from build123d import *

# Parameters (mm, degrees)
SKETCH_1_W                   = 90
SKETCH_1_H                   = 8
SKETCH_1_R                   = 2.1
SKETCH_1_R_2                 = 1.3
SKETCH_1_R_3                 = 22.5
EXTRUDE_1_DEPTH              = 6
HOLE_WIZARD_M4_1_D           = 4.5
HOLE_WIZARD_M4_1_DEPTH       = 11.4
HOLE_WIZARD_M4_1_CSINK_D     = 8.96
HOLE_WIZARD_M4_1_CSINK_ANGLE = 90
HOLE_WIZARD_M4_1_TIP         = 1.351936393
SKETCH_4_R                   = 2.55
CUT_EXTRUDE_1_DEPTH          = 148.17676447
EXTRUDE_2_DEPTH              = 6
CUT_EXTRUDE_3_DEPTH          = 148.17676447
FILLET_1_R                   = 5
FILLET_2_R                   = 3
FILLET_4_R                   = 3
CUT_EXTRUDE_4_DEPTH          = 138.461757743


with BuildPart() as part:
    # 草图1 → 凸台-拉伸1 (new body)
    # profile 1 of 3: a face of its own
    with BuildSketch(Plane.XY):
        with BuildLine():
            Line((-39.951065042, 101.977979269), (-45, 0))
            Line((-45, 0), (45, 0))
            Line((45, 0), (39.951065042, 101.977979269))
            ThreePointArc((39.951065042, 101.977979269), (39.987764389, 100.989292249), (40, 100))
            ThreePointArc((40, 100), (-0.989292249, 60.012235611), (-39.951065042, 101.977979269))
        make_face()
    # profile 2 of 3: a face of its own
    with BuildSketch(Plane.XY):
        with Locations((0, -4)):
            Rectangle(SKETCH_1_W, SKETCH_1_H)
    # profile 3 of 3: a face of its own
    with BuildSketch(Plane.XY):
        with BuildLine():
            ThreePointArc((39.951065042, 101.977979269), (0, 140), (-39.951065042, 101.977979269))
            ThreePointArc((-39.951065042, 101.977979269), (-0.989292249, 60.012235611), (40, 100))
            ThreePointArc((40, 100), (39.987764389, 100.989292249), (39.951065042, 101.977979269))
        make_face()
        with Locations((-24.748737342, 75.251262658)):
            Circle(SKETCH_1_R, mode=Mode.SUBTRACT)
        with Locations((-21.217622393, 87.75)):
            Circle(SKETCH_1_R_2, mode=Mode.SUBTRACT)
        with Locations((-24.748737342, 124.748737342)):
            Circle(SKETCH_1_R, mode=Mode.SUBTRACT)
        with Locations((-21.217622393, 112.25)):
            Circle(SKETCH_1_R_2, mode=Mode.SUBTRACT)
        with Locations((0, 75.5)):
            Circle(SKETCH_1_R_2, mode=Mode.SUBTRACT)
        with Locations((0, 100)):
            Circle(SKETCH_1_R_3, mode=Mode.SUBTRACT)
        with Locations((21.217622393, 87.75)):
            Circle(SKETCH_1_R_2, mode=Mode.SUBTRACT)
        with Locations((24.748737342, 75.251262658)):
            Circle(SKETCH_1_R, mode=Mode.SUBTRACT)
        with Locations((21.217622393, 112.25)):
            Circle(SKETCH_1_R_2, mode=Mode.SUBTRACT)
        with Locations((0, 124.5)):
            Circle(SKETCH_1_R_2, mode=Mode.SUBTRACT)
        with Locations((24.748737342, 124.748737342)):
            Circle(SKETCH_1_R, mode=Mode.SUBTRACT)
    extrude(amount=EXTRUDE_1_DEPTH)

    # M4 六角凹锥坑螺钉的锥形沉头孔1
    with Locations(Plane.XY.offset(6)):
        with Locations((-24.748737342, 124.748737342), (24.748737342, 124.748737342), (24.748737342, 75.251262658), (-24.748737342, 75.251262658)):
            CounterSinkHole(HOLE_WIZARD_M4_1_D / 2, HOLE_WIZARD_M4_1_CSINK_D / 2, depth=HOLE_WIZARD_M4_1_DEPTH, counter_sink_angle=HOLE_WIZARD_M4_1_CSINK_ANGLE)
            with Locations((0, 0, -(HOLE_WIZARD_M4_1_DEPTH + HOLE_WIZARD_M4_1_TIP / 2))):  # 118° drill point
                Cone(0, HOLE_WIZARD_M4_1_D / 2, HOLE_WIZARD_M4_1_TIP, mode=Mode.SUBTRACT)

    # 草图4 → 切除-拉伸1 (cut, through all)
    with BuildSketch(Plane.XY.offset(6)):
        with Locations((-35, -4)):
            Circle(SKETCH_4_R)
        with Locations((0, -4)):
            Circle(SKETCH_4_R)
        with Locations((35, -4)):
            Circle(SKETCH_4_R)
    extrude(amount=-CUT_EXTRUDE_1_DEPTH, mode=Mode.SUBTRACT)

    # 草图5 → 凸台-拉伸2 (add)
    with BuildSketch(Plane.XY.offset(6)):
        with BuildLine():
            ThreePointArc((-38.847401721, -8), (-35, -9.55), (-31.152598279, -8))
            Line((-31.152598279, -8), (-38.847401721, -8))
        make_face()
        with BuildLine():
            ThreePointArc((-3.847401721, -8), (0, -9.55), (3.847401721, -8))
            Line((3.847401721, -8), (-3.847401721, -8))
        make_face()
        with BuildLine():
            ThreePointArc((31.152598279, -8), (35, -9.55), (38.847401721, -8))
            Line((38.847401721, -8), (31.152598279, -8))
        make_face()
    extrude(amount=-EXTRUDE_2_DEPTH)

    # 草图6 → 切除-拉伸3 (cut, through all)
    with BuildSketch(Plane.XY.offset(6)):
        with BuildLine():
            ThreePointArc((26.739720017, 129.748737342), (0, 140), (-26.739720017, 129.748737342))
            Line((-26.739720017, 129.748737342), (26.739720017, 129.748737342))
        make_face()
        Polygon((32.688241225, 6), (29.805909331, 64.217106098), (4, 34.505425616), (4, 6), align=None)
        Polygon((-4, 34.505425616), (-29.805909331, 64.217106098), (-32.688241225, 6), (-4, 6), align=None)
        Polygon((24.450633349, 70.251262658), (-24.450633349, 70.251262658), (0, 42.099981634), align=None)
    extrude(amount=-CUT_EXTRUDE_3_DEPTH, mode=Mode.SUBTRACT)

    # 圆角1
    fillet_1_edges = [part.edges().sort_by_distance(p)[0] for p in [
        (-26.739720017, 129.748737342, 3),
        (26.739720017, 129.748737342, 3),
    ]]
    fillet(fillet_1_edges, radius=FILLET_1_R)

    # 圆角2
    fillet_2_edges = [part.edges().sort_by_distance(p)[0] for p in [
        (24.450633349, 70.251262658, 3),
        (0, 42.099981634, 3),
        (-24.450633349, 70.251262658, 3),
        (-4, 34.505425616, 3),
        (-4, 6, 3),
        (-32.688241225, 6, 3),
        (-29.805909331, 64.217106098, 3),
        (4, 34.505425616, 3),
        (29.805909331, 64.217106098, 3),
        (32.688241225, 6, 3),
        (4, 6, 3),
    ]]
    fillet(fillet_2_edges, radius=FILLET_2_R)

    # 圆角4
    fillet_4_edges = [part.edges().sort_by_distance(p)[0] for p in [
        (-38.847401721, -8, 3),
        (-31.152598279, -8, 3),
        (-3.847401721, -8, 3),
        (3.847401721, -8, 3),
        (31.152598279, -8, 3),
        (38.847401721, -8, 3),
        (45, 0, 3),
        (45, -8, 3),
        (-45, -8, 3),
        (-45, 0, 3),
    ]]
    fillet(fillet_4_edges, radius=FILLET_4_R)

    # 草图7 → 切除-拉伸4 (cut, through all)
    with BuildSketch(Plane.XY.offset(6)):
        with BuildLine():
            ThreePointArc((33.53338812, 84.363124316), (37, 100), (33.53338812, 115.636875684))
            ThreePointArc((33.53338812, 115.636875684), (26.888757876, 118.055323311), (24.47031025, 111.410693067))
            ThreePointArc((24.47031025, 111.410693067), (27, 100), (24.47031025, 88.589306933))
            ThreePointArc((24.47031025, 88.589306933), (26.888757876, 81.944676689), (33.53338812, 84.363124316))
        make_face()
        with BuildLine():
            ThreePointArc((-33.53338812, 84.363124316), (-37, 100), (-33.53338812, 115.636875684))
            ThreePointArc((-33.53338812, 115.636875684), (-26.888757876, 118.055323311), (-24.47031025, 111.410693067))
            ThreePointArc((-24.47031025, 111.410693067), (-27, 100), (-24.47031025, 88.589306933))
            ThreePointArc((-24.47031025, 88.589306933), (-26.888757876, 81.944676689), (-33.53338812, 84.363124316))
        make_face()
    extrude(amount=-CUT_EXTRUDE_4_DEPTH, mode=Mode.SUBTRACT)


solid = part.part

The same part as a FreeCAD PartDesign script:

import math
import FreeCAD as App
import Part
import Sketcher
Q = App.Units.Quantity


def edges_at(feature, points):
    """Names of the edges that pass closest to the given points."""
    edges = feature.Shape.Edges
    near = lambda p: min(range(len(edges)), key=lambda i: edges[i].distToShape(Part.Vertex(*p))[0])
    return sorted({f"Edge{near(p) + 1}" for p in points})

doc = App.newDocument("Part")
params = doc.addObject("Spreadsheet::Sheet", "Params")
for row, (alias, value) in enumerate([
    ("sketch1_diameter", "45 mm"),
    ("sketch1_radius", "40 mm"),
    ("sketch1_diameter2", "4.2 mm"),
    ("sketch1_diameter3", "2.6 mm"),
    ("sketch1_width", "90 mm"),
    ("pad1_length", "6 mm"),
    ("sketch2_diameter", "4.5 mm"),
    ("hole_diameter", "4.5 mm"),
    ("hole_depth", "11.4 mm"),
    ("hole_csink_diameter", "8.96 mm"),
    ("sketch3_diameter", "5.1 mm"),
    ("sketch4_radius", "5.55 mm"),
    ("pad2_length", "6 mm"),
    ("sketch5_radius", "40 mm"),
    ("fillet_radius", "5 mm"),
    ("fillet2_radius", "3 mm"),
    ("fillet3_radius", "3 mm"),
    ("sketch6_radius", "37 mm"),
    ("sketch6_radius2", "5 mm"),
], start=1):
    params.set(f"A{row}", alias)
    params.set(f"B{row}", "=" + value)
    params.setAlias(f"B{row}", alias)

body = doc.addObject("PartDesign::Body", "Body")

# Sketch on XY plane
sketch1 = body.newObject("Sketcher::SketchObject", "Sketch")
sketch1.AttachmentSupport = (doc.getObject("XY_Plane"), [""])
sketch1.MapMode = "FlatFace"
sketch1.addGeometry(Part.LineSegment(App.Vector(-40, 102, 0), App.Vector(-45, 0, 0)), False)
sketch1.addGeometry(Part.LineSegment(App.Vector(-45, 0, 0), App.Vector(-45, -8, 0)), False)
sketch1.addGeometry(Part.LineSegment(App.Vector(-45, -8, 0), App.Vector(45, -8, 0)), False)
sketch1.addGeometry(Part.LineSegment(App.Vector(45, -8, 0), App.Vector(45, 0, 0)), False)
sketch1.addGeometry(Part.LineSegment(App.Vector(45, 0, 0), App.Vector(40, 102, 0)), False)
sketch1.addGeometry(Part.ArcOfCircle(Part.Circle(App.Vector(0, 100, 0), App.Vector(0, 0, 1), 40), math.radians(3), math.radians(177)), False)
sketch1.addGeometry(Part.Circle(App.Vector(24.7, 124.7, 0), App.Vector(0, 0, 1), 2.1), False)
sketch1.addGeometry(Part.Circle(App.Vector(21.2, 112.2, 0), App.Vector(0, 0, 1), 1.3), False)
sketch1.addGeometry(Part.Circle(App.Vector(-24.7, 75.3, 0), App.Vector(0, 0, 1), 2.1), False)
sketch1.addGeometry(Part.Circle(App.Vector(0, 75.5, 0), App.Vector(0, 0, 1), 1.3), False)
sketch1.addGeometry(Part.Circle(App.Vector(-21.2, 87.8, 0), App.Vector(0, 0, 1), 1.3), False)
sketch1.addGeometry(Part.Circle(App.Vector(0, 100, 0), App.Vector(0, 0, 1), 22.5), False)
sketch1.addGeometry(Part.Circle(App.Vector(24.7, 75.3, 0), App.Vector(0, 0, 1), 2.1), False)
sketch1.addGeometry(Part.Circle(App.Vector(21.2, 87.8, 0), App.Vector(0, 0, 1), 1.3), False)
sketch1.addGeometry(Part.Circle(App.Vector(-21.2, 112.2, 0), App.Vector(0, 0, 1), 1.3), False)
sketch1.addGeometry(Part.Circle(App.Vector(-24.7, 124.7, 0), App.Vector(0, 0, 1), 2.1), False)
sketch1.addGeometry(Part.Circle(App.Vector(0, 124.5, 0), App.Vector(0, 0, 1), 1.3), False)
sketch1.addConstraint(Sketcher.Constraint("Coincident", 0, 2, 1, 1))
sketch1.addConstraint(Sketcher.Constraint("Coincident", 1, 2, 2, 1))
sketch1.addConstraint(Sketcher.Constraint("Coincident", 2, 2, 3, 1))
sketch1.addConstraint(Sketcher.Constraint("Coincident", 3, 2, 4, 1))
sketch1.addConstraint(Sketcher.Constraint("Tangent", 4, 2, 5, 1))
sketch1.addConstraint(Sketcher.Constraint("Tangent", 5, 2, 0, 1))
sketch1.addConstraint(Sketcher.Constraint("Vertical", 1))
sketch1.addConstraint(Sketcher.Constraint("Horizontal", 2))
sketch1.addConstraint(Sketcher.Constraint("Vertical", 3))
sketch1.addConstraint(Sketcher.Constraint("Coincident", 11, 3, 5, 3))
sketch1.addConstraint(Sketcher.Constraint("Equal", 6, 8))
sketch1.addConstraint(Sketcher.Constraint("Equal", 7, 9))
sketch1.addConstraint(Sketcher.Constraint("Equal", 9, 10))
sketch1.addConstraint(Sketcher.Constraint("Equal", 8, 12))
sketch1.addConstraint(Sketcher.Constraint("Equal", 10, 13))
sketch1.addConstraint(Sketcher.Constraint("Equal", 13, 14))
sketch1.addConstraint(Sketcher.Constraint("Equal", 12, 15))
sketch1.addConstraint(Sketcher.Constraint("Equal", 14, 16))
sketch1.addConstraint(Sketcher.Constraint("Symmetric", 0, 2, 3, 2, -1, 1))
sketch1.addConstraint(Sketcher.Constraint("Symmetric", 8, 3, 12, 3, -2))
sketch1.addConstraint(Sketcher.Constraint("Symmetric", 10, 3, 13, 3, -2))
sketch1.addConstraint(Sketcher.Constraint("Symmetric", 7, 3, 14, 3, -2))
sketch1.addConstraint(Sketcher.Constraint("Symmetric", 6, 3, 15, 3, -2))
sketch1.addConstraint(Sketcher.Constraint("PointOnObject", 5, 3, -2))
sketch1.addConstraint(Sketcher.Constraint("PointOnObject", 9, 3, -2))
sketch1.addConstraint(Sketcher.Constraint("PointOnObject", 16, 3, -2))
sketch1.addConstraint(Sketcher.Constraint("PointOnObject", 0, 2, -1))
sketch1.addConstraint(Sketcher.Constraint("Vertical", 6, 3, 12, 3))
sketch1.addConstraint(Sketcher.Constraint("Vertical", 7, 3, 13, 3))
sketch1.addConstraint(Sketcher.Constraint("Diameter", 11, Q("45 mm")))
sketch1.addConstraint(Sketcher.Constraint("Radius", 5, Q("40 mm")))
sketch1.addConstraint(Sketcher.Constraint("Diameter", 6, Q("4.2 mm")))
sketch1.addConstraint(Sketcher.Constraint("Diameter", 7, Q("2.6 mm")))
sketch1.addConstraint(Sketcher.Constraint("DistanceX", 2, 1, 2, 2, Q("90 mm")))
sketch1.addConstraint(Sketcher.Constraint("DistanceY", 1, 2, 1, 1, Q("8 mm")))
sketch1.addConstraint(Sketcher.Constraint("DistanceY", -1, 1, 5, 3, Q("100 mm")))
sketch1.addConstraint(Sketcher.Constraint("DistanceY", -1, 1, 9, 3, Q("75.5 mm")))
sketch1.addConstraint(Sketcher.Constraint("DistanceY", -1, 1, 16, 3, Q("124.5 mm")))
sketch1.addConstraint(Sketcher.Constraint("DistanceY", 10, 3, 7, 3, Q("24.5 mm")))
sketch1.addConstraint(Sketcher.Constraint("DistanceY", -1, 1, 7, 3, Q("112.25 mm")))
sketch1.addConstraint(Sketcher.Constraint("DistanceX", 8, 3, 7, 3, Q("45.96636 mm")))
sketch1.addConstraint(Sketcher.Constraint("DistanceY", 4, 2, 6, 3, Q("22.770758 mm")))
sketch1.addConstraint(Sketcher.Constraint("DistanceX", -1, 1, 6, 3, Q("24.748737 mm")))
sketch1.addConstraint(Sketcher.Constraint("DistanceY", -1, 1, 8, 3, Q("75.251263 mm")))
sketch1.setExpression("Constraints[29]", "Params.sketch1_diameter")
sketch1.setExpression("Constraints[30]", "Params.sketch1_radius")
sketch1.setExpression("Constraints[31]", "Params.sketch1_diameter2")
sketch1.setExpression("Constraints[32]", "Params.sketch1_diameter3")
sketch1.setExpression("Constraints[33]", "Params.sketch1_width")
pad1 = body.newObject("PartDesign::Pad", "Pad")
pad1.Profile = sketch1
pad1.setExpression("Length", "Params.pad1_length")

# Sketch on XY plane
sketch2 = body.newObject("Sketcher::SketchObject", "Sketch001")
sketch2.AttachmentSupport = (doc.getObject("XY_Plane"), [""])
sketch2.MapMode = "FlatFace"
sketch2.AttachmentOffset = App.Placement(App.Vector(0, 0, 6), App.Rotation())
sketch2.addGeometry(Part.Circle(App.Vector(-24.7, 124.7, 0), App.Vector(0, 0, 1), 2.2), False)
sketch2.addGeometry(Part.Circle(App.Vector(24.7, 124.7, 0), App.Vector(0, 0, 1), 2.2), False)
sketch2.addGeometry(Part.Circle(App.Vector(24.7, 75.3, 0), App.Vector(0, 0, 1), 2.2), False)
sketch2.addGeometry(Part.Circle(App.Vector(-24.7, 75.3, 0), App.Vector(0, 0, 1), 2.2), False)
sketch2.addConstraint(Sketcher.Constraint("Equal", 0, 1))
sketch2.addConstraint(Sketcher.Constraint("Equal", 1, 2))
sketch2.addConstraint(Sketcher.Constraint("Equal", 2, 3))
sketch2.addConstraint(Sketcher.Constraint("Symmetric", 0, 3, 1, 3, -2))
sketch2.addConstraint(Sketcher.Constraint("Symmetric", 2, 3, 3, 3, -2))
sketch2.addConstraint(Sketcher.Constraint("Vertical", 1, 3, 2, 3))
sketch2.addConstraint(Sketcher.Constraint("Diameter", 0, Q("4.5 mm")))
sketch2.addConstraint(Sketcher.Constraint("DistanceX", 0, 3, -1, 1, Q("24.748737 mm")))
sketch2.addConstraint(Sketcher.Constraint("DistanceY", -1, 1, 0, 3, Q("124.748737 mm")))
sketch2.addConstraint(Sketcher.Constraint("DistanceY", -1, 1, 2, 3, Q("75.251263 mm")))
sketch2.setExpression("Constraints[6]", "Params.sketch2_diameter")
doc.recompute()
hole = body.newObject("PartDesign::Hole", "Hole")
hole.Profile = sketch2
hole.ThreadType = "None"
hole.setExpression("Diameter", "Params.hole_diameter")
hole.DepthType = "Dimension"
hole.setExpression("Depth", "Params.hole_depth")
hole.DrillPoint = "Angled"
hole.DrillPointAngle = 118
hole.HoleCutType = "Countersink"
hole.setExpression("HoleCutDiameter", "Params.hole_csink_diameter")
hole.HoleCutCountersinkAngle = 90

# Sketch on XY plane
sketch3 = body.newObject("Sketcher::SketchObject", "Sketch002")
sketch3.AttachmentSupport = (doc.getObject("XY_Plane"), [""])
sketch3.MapMode = "FlatFace"
sketch3.AttachmentOffset = App.Placement(App.Vector(0, 0, 6), App.Rotation())
sketch3.addGeometry(Part.Circle(App.Vector(-35, -4, 0), App.Vector(0, 0, 1), 2.5), False)
sketch3.addGeometry(Part.Circle(App.Vector(0, -4, 0), App.Vector(0, 0, 1), 2.5), False)
sketch3.addGeometry(Part.Circle(App.Vector(35, -4, 0), App.Vector(0, 0, 1), 2.5), False)
sketch3.addConstraint(Sketcher.Constraint("Equal", 0, 1))
sketch3.addConstraint(Sketcher.Constraint("Equal", 1, 2))
sketch3.addConstraint(Sketcher.Constraint("Symmetric", 0, 3, 2, 3, -2))
sketch3.addConstraint(Sketcher.Constraint("PointOnObject", 1, 3, -2))
sketch3.addConstraint(Sketcher.Constraint("Horizontal", 0, 3, 1, 3))
sketch3.addConstraint(Sketcher.Constraint("Diameter", 0, Q("5.1 mm")))
sketch3.addConstraint(Sketcher.Constraint("DistanceX", 0, 3, -1, 1, Q("35 mm")))
sketch3.addConstraint(Sketcher.Constraint("DistanceY", 0, 3, -1, 1, Q("4 mm")))
sketch3.setExpression("Constraints[5]", "Params.sketch3_diameter")
pocket1 = body.newObject("PartDesign::Pocket", "Pocket")
pocket1.Profile = sketch3
pocket1.Type = "ThroughAll"

# Sketch on XY plane
sketch4 = body.newObject("Sketcher::SketchObject", "Sketch003")
sketch4.AttachmentSupport = (doc.getObject("XY_Plane"), [""])
sketch4.MapMode = "FlatFace"
sketch4.AttachmentOffset = App.Placement(App.Vector(0, 0, 6), App.Rotation())
sketch4.addGeometry(Part.ArcOfCircle(Part.Circle(App.Vector(-35, -4, 0), App.Vector(0, 0, 1), 6), math.radians(-134), math.radians(-46)), False)
sketch4.addGeometry(Part.LineSegment(App.Vector(-31, -8, 0), App.Vector(-39, -8, 0)), False)
sketch4.addGeometry(Part.ArcOfCircle(Part.Circle(App.Vector(0, -4, 0), App.Vector(0, 0, 1), 6), math.radians(-134), math.radians(-46)), False)
sketch4.addGeometry(Part.LineSegment(App.Vector(4, -8, 0), App.Vector(-4, -8, 0)), False)
sketch4.addGeometry(Part.ArcOfCircle(Part.Circle(App.Vector(35, -4, 0), App.Vector(0, 0, 1), 6), math.radians(-134), math.radians(-46)), False)
sketch4.addGeometry(Part.LineSegment(App.Vector(39, -8, 0), App.Vector(31, -8, 0)), False)
sketch4.addConstraint(Sketcher.Constraint("Coincident", 0, 1, 1, 2))
sketch4.addConstraint(Sketcher.Constraint("Coincident", 1, 1, 0, 2))
sketch4.addConstraint(Sketcher.Constraint("Coincident", 2, 1, 3, 2))
sketch4.addConstraint(Sketcher.Constraint("Coincident", 3, 1, 2, 2))
sketch4.addConstraint(Sketcher.Constraint("Coincident", 4, 1, 5, 2))
sketch4.addConstraint(Sketcher.Constraint("Coincident", 5, 1, 4, 2))
sketch4.addConstraint(Sketcher.Constraint("Horizontal", 1))
sketch4.addConstraint(Sketcher.Constraint("Horizontal", 3))
sketch4.addConstraint(Sketcher.Constraint("Horizontal", 5))
sketch4.addConstraint(Sketcher.Constraint("Equal", 0, 2))
sketch4.addConstraint(Sketcher.Constraint("Equal", 2, 4))
sketch4.addConstraint(Sketcher.Constraint("Symmetric", 0, 3, 4, 3, -2))
sketch4.addConstraint(Sketcher.Constraint("PointOnObject", 2, 3, -2))
sketch4.addConstraint(Sketcher.Constraint("Horizontal", 0, 3, 2, 3))
sketch4.addConstraint(Sketcher.Constraint("Horizontal", 1, 1, 2, 1))
sketch4.addConstraint(Sketcher.Constraint("Horizontal", 3, 1, 4, 1))
sketch4.addConstraint(Sketcher.Constraint("Radius", 0, Q("5.55 mm")))
sketch4.addConstraint(Sketcher.Constraint("DistanceX", 0, 3, -1, 1, Q("35 mm")))
sketch4.addConstraint(Sketcher.Constraint("DistanceY", 0, 3, -1, 1, Q("4 mm")))
sketch4.addConstraint(Sketcher.Constraint("DistanceY", 0, 1, -1, 1, Q("8 mm")))
sketch4.setExpression("Constraints[16]", "Params.sketch4_radius")
pad2 = body.newObject("PartDesign::Pad", "Pad001")
pad2.Profile = sketch4
pad2.setExpression("Length", "Params.pad2_length")
pad2.Reversed = True

# Sketch on XY plane
sketch5 = body.newObject("Sketcher::SketchObject", "Sketch004")
sketch5.AttachmentSupport = (doc.getObject("XY_Plane"), [""])
sketch5.MapMode = "FlatFace"
sketch5.AttachmentOffset = App.Placement(App.Vector(0, 0, 6), App.Rotation())
sketch5.addGeometry(Part.ArcOfCircle(Part.Circle(App.Vector(0, 100, 0), App.Vector(0, 0, 1), 40), math.radians(48), math.radians(132)), False)
sketch5.addGeometry(Part.LineSegment(App.Vector(-27, 130, 0), App.Vector(27, 130, 0)), False)
sketch5.addGeometry(Part.LineSegment(App.Vector(33, 6, 0), App.Vector(30, 64, 0)), False)
sketch5.addGeometry(Part.LineSegment(App.Vector(30, 64, 0), App.Vector(4, 35, 0)), False)
sketch5.addGeometry(Part.LineSegment(App.Vector(4, 35, 0), App.Vector(4, 6, 0)), False)
sketch5.addGeometry(Part.LineSegment(App.Vector(4, 6, 0), App.Vector(33, 6, 0)), False)
sketch5.addGeometry(Part.LineSegment(App.Vector(-4, 35, 0), App.Vector(-30, 64, 0)), False)
sketch5.addGeometry(Part.LineSegment(App.Vector(-30, 64, 0), App.Vector(-33, 6, 0)), False)
sketch5.addGeometry(Part.LineSegment(App.Vector(-33, 6, 0), App.Vector(-4, 6, 0)), False)
sketch5.addGeometry(Part.LineSegment(App.Vector(-4, 6, 0), App.Vector(-4, 35, 0)), False)
sketch5.addGeometry(Part.LineSegment(App.Vector(24, 70, 0), App.Vector(-24, 70, 0)), False)
sketch5.addGeometry(Part.LineSegment(App.Vector(-24, 70, 0), App.Vector(0, 42, 0)), False)
sketch5.addGeometry(Part.LineSegment(App.Vector(0, 42, 0), App.Vector(24, 70, 0)), False)
sketch5.addConstraint(Sketcher.Constraint("Coincident", 0, 1, 1, 2))
sketch5.addConstraint(Sketcher.Constraint("Coincident", 1, 1, 0, 2))
sketch5.addConstraint(Sketcher.Constraint("Coincident", 2, 2, 3, 1))
sketch5.addConstraint(Sketcher.Constraint("Coincident", 3, 2, 4, 1))
sketch5.addConstraint(Sketcher.Constraint("Coincident", 4, 2, 5, 1))
sketch5.addConstraint(Sketcher.Constraint("Coincident", 5, 2, 2, 1))
sketch5.addConstraint(Sketcher.Constraint("Coincident", 6, 2, 7, 1))
sketch5.addConstraint(Sketcher.Constraint("Coincident", 7, 2, 8, 1))
sketch5.addConstraint(Sketcher.Constraint("Coincident", 8, 2, 9, 1))
sketch5.addConstraint(Sketcher.Constraint("Coincident", 9, 2, 6, 1))
sketch5.addConstraint(Sketcher.Constraint("Coincident", 10, 2, 11, 1))
sketch5.addConstraint(Sketcher.Constraint("Coincident", 11, 2, 12, 1))
sketch5.addConstraint(Sketcher.Constraint("Coincident", 12, 2, 10, 1))
sketch5.addConstraint(Sketcher.Constraint("Horizontal", 1))
sketch5.addConstraint(Sketcher.Constraint("Vertical", 4))
sketch5.addConstraint(Sketcher.Constraint("Horizontal", 5))
sketch5.addConstraint(Sketcher.Constraint("Horizontal", 8))
sketch5.addConstraint(Sketcher.Constraint("Vertical", 9))
sketch5.addConstraint(Sketcher.Constraint("Horizontal", 10))
sketch5.addConstraint(Sketcher.Constraint("Symmetric", 2, 2, 6, 2, -2))
sketch5.addConstraint(Sketcher.Constraint("Symmetric", 5, 2, 7, 2, -2))
sketch5.addConstraint(Sketcher.Constraint("Symmetric", 3, 2, 9, 2, -2))
sketch5.addConstraint(Sketcher.Constraint("PointOnObject", 0, 3, -2))
sketch5.addConstraint(Sketcher.Constraint("PointOnObject", 11, 2, -2))
sketch5.addConstraint(Sketcher.Constraint("Parallel", 6, 11))
sketch5.addConstraint(Sketcher.Constraint("Parallel", 3, 12))
sketch5.addConstraint(Sketcher.Constraint("Radius", 0, Q("40 mm")))
sketch5.addConstraint(Sketcher.Constraint("DistanceY", -1, 1, 0, 3, Q("100 mm")))
sketch5.addConstraint(Sketcher.Constraint("DistanceX", -1, 1, 3, 2, Q("4 mm")))
sketch5.addConstraint(Sketcher.Constraint("DistanceY", -1, 1, 4, 2, Q("6 mm")))
sketch5.addConstraint(Sketcher.Constraint("DistanceX", 1, 1, 1, 2, Q("53.47944 mm")))
sketch5.addConstraint(Sketcher.Constraint("DistanceX", 5, 1, 5, 2, Q("28.688241 mm")))
sketch5.addConstraint(Sketcher.Constraint("DistanceX", 10, 2, 10, 1, Q("48.901267 mm")))
sketch5.addConstraint(Sketcher.Constraint("DistanceY", 4, 2, 4, 1, Q("28.505426 mm")))
sketch5.addConstraint(Sketcher.Constraint("DistanceX", -1, 1, 2, 2, Q("29.805909 mm")))
sketch5.addConstraint(Sketcher.Constraint("DistanceY", -1, 1, 11, 2, Q("42.099982 mm")))
sketch5.addConstraint(Sketcher.Constraint("DistanceY", 2, 2, 0, 1, Q("65.531631 mm")))
sketch5.setExpression("Constraints[26]", "Params.sketch5_radius")
pocket2 = body.newObject("PartDesign::Pocket", "Pocket001")
pocket2.Profile = sketch5
pocket2.Type = "ThroughAll"
doc.recompute()

fillet = body.newObject("PartDesign::Fillet", "Fillet")
fillet.Base = (pocket2, edges_at(pocket2, [(-26.74, 129.749, 3), (26.74, 129.749, 3)]))
fillet.setExpression("Radius", "Params.fillet_radius")
doc.recompute()

fillet2 = body.newObject("PartDesign::Fillet", "Fillet001")
fillet2.Base = (fillet, edges_at(fillet, [
    (24.451, 70.251, 3),
    (0, 42.1, 3),
    (-24.451, 70.251, 3),
    (-4, 34.505, 3),
    (-4, 6, 3),
    (-32.688, 6, 3),
    (-29.806, 64.217, 3),
    (4, 34.505, 3),
    (29.806, 64.217, 3),
    (32.688, 6, 3),
    (4, 6, 3),
]))
fillet2.setExpression("Radius", "Params.fillet2_radius")
doc.recompute()

fillet3 = body.newObject("PartDesign::Fillet", "Fillet002")
fillet3.Base = (fillet2, edges_at(fillet2, [
    (-38.847, -8, 3),
    (-31.153, -8, 3),
    (-3.847, -8, 3),
    (3.847, -8, 3),
    (31.153, -8, 3),
    (38.847, -8, 3),
    (45, 0, 3),
    (45, -8, 3),
    (-45, -8, 3),
    (-45, 0, 3),
]))
fillet3.setExpression("Radius", "Params.fillet3_radius")

# Sketch on XY plane
sketch6 = body.newObject("Sketcher::SketchObject", "Sketch005")
sketch6.AttachmentSupport = (doc.getObject("XY_Plane"), [""])
sketch6.MapMode = "FlatFace"
sketch6.AttachmentOffset = App.Placement(App.Vector(0, 0, 6), App.Rotation())
sketch6.addGeometry(Part.ArcOfCircle(Part.Circle(App.Vector(0, 100, 0), App.Vector(0, 0, 1), 37), math.radians(-25), math.radians(25)), False)
sketch6.addGeometry(Part.ArcOfCircle(Part.Circle(App.Vector(29, 114, 0), App.Vector(0, 0, 1), 5), math.radians(25), math.radians(205)), False)
sketch6.addGeometry(Part.ArcOfCircle(Part.Circle(App.Vector(0, 100, 0), App.Vector(0, 0, 1), 27), math.radians(-25), math.radians(25)), False)
sketch6.addGeometry(Part.ArcOfCircle(Part.Circle(App.Vector(29, 86, 0), App.Vector(0, 0, 1), 5), math.radians(155), math.radians(335)), False)
sketch6.addGeometry(Part.ArcOfCircle(Part.Circle(App.Vector(0, 100, 0), App.Vector(0, 0, 1), 37), math.radians(155), math.radians(205)), False)
sketch6.addGeometry(Part.ArcOfCircle(Part.Circle(App.Vector(-29, 86, 0), App.Vector(0, 0, 1), 5), math.radians(-155), math.radians(25)), False)
sketch6.addGeometry(Part.ArcOfCircle(Part.Circle(App.Vector(0, 100, 0), App.Vector(0, 0, 1), 27), math.radians(155), math.radians(205)), False)
sketch6.addGeometry(Part.ArcOfCircle(Part.Circle(App.Vector(-29, 114, 0), App.Vector(0, 0, 1), 5), math.radians(-25), math.radians(155)), False)
sketch6.addConstraint(Sketcher.Constraint("Tangent", 0, 2, 1, 1))
sketch6.addConstraint(Sketcher.Constraint("Tangent", 1, 2, 2, 2))
sketch6.addConstraint(Sketcher.Constraint("Tangent", 2, 1, 3, 1))
sketch6.addConstraint(Sketcher.Constraint("Tangent", 3, 2, 0, 1))
sketch6.addConstraint(Sketcher.Constraint("Tangent", 4, 2, 5, 1))
sketch6.addConstraint(Sketcher.Constraint("Tangent", 5, 2, 6, 2))
sketch6.addConstraint(Sketcher.Constraint("Tangent", 6, 1, 7, 1))
sketch6.addConstraint(Sketcher.Constraint("Tangent", 7, 2, 4, 1))
sketch6.addConstraint(Sketcher.Constraint("Coincident", 2, 3, 0, 3))
sketch6.addConstraint(Sketcher.Constraint("Coincident", 4, 3, 0, 3))
sketch6.addConstraint(Sketcher.Constraint("Coincident", 6, 3, 0, 3))
sketch6.addConstraint(Sketcher.Constraint("Equal", 0, 4))
sketch6.addConstraint(Sketcher.Constraint("Equal", 3, 5))
sketch6.addConstraint(Sketcher.Constraint("Symmetric", 3, 3, 5, 3, -2))
sketch6.addConstraint(Sketcher.Constraint("Horizontal", 1, 3, 7, 3))
sketch6.addConstraint(Sketcher.Constraint("Vertical", 1, 3, 3, 3))
sketch6.addConstraint(Sketcher.Constraint("Radius", 0, Q("37 mm")))
sketch6.addConstraint(Sketcher.Constraint("Radius", 1, Q("5 mm")))
sketch6.addConstraint(Sketcher.Constraint("DistanceY", -1, 1, 0, 3, Q("100 mm")))
sketch6.addConstraint(Sketcher.Constraint("DistanceX", 5, 3, 3, 3, Q("58.003698 mm")))
sketch6.setExpression("Constraints[16]", "Params.sketch6_radius")
sketch6.setExpression("Constraints[17]", "Params.sketch6_radius2")
pocket3 = body.newObject("PartDesign::Pocket", "Pocket002")
pocket3.Profile = sketch6
pocket3.Type = "ThroughAll"

doc.recompute()
